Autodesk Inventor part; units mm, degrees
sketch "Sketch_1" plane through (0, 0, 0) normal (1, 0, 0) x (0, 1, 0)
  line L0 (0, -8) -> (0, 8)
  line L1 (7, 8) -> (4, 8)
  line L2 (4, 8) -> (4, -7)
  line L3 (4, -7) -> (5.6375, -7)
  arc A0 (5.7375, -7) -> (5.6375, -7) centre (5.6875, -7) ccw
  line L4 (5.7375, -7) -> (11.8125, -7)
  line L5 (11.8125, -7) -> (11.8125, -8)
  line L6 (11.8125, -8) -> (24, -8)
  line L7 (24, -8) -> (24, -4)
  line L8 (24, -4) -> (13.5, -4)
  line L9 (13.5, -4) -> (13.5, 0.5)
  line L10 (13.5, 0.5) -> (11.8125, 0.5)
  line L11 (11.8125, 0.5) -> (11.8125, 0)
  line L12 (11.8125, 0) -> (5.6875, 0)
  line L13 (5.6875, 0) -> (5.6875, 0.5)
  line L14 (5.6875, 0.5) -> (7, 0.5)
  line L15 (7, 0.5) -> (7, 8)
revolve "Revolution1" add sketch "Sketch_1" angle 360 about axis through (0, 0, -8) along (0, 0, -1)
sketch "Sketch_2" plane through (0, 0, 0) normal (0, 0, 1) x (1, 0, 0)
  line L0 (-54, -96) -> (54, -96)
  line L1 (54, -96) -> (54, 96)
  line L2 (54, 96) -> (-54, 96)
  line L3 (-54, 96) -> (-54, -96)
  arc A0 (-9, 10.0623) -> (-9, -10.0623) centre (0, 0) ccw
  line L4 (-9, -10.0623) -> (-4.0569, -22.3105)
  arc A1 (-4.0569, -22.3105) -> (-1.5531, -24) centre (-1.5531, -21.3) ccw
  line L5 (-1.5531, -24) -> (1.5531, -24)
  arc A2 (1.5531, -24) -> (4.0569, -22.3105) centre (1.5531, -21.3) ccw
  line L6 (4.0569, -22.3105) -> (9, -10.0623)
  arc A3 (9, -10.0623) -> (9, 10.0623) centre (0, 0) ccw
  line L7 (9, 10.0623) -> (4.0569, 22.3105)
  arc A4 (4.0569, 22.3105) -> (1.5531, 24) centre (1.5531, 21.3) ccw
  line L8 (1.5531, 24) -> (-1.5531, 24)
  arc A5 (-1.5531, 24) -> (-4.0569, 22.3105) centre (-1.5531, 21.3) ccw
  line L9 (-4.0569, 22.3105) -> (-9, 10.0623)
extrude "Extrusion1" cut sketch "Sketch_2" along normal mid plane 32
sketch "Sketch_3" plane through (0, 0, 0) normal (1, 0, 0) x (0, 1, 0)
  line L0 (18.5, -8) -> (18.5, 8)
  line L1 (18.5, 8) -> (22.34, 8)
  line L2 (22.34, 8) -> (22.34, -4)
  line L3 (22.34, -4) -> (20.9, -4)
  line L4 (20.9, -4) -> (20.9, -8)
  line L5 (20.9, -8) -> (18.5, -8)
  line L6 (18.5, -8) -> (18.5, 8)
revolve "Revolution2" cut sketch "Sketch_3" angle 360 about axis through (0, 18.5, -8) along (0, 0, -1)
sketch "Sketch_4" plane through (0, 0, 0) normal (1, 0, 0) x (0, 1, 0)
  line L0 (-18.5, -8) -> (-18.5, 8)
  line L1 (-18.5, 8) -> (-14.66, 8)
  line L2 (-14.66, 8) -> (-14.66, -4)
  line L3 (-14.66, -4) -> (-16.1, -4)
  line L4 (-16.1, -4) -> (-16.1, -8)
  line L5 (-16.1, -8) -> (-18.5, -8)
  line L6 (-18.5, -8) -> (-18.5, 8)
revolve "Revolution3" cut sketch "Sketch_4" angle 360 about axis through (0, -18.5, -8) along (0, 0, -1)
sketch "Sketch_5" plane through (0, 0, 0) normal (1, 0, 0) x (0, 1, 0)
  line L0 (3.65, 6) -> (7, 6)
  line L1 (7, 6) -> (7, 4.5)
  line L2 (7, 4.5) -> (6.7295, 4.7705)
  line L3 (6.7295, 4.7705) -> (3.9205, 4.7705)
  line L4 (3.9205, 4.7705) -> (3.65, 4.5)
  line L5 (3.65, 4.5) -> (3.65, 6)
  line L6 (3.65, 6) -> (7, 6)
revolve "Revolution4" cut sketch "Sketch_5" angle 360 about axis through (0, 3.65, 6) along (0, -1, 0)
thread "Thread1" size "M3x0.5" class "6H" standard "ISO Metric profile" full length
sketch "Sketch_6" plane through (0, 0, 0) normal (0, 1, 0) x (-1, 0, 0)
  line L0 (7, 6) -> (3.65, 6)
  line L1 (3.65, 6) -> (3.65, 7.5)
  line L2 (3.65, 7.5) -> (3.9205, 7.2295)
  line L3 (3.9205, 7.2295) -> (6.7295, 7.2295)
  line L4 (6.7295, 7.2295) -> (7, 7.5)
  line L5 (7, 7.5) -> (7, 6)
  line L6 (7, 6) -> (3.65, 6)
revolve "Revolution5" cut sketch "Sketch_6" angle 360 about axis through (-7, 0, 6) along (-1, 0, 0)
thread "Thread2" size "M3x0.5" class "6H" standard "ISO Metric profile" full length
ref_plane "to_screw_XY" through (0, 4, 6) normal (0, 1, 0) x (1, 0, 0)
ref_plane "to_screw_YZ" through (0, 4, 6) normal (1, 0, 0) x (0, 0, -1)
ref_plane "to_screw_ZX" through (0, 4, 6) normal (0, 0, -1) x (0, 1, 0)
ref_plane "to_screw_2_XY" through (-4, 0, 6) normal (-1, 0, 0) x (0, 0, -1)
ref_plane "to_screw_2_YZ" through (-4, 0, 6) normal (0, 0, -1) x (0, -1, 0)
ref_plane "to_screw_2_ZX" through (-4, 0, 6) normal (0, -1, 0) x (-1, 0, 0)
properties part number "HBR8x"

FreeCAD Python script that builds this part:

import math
import FreeCAD as App
import Part
import Sketcher

V = App.Vector
Q = App.Units.Quantity

doc = App.newDocument("Part")
body = doc.addObject("PartDesign::Body", "Body")

# Sketch on YZ plane
sketch1 = body.newObject("Sketcher::SketchObject", "Sketch")
sketch1.AttachmentSupport = (doc.getObject("YZ_Plane"), [""])
sketch1.MapMode = "FlatFace"
sketch1.addGeometry([
    Part.LineSegment(V(7, 0.5, 0), V(7, 8, 0)),  # 0
    Part.LineSegment(V(7, 8, 0), V(4, 8, 0)),  # 1
    Part.LineSegment(V(4, 8, 0), V(4, -7, 0)),  # 2
    Part.LineSegment(V(4, -7, 0), V(5.638, -7, 0)),  # 3
    Part.ArcOfCircle(Part.Circle(V(5.688, -7, 0), V(0, 0, 1), 0.05), math.radians(0), math.radians(180)),  # 4
    Part.LineSegment(V(5.737, -7, 0), V(11.812, -7, 0)),  # 5
    Part.LineSegment(V(11.812, -7, 0), V(11.812, -8, 0)),  # 6
    Part.LineSegment(V(11.812, -8, 0), V(24, -8, 0)),  # 7
    Part.LineSegment(V(24, -8, 0), V(24, -4, 0)),  # 8
    Part.LineSegment(V(24, -4, 0), V(13.5, -4, 0)),  # 9
    Part.LineSegment(V(13.5, -4, 0), V(13.5, 0.5, 0)),  # 10
    Part.LineSegment(V(13.5, 0.5, 0), V(11.812, 0.5, 0)),  # 11
    Part.LineSegment(V(11.812, 0.5, 0), V(11.812, 0, 0)),  # 12
    Part.LineSegment(V(11.812, 0, 0), V(5.688, 0, 0)),  # 13
    Part.LineSegment(V(5.688, 0, 0), V(5.688, 0.5, 0)),  # 14
    Part.LineSegment(V(5.688, 0.5, 0), V(7, 0.5, 0)),  # 15
], False)
sketch1.addConstraint([
    Sketcher.Constraint("Coincident", 0, 2, 1, 1),
    Sketcher.Constraint("Coincident", 1, 2, 2, 1),
    Sketcher.Constraint("Coincident", 2, 2, 3, 1),
    Sketcher.Constraint("Coincident", 3, 2, 4, 2),
    Sketcher.Constraint("Coincident", 4, 1, 5, 1),
    Sketcher.Constraint("Coincident", 5, 2, 6, 1),
    Sketcher.Constraint("Coincident", 6, 2, 7, 1),
    Sketcher.Constraint("Coincident", 7, 2, 8, 1),
    Sketcher.Constraint("Coincident", 8, 2, 9, 1),
    Sketcher.Constraint("Coincident", 9, 2, 10, 1),
    Sketcher.Constraint("Coincident", 10, 2, 11, 1),
    Sketcher.Constraint("Coincident", 11, 2, 12, 1),
    Sketcher.Constraint("Coincident", 12, 2, 13, 1),
    Sketcher.Constraint("Coincident", 13, 2, 14, 1),
    Sketcher.Constraint("Coincident", 14, 2, 15, 1),
    Sketcher.Constraint("Coincident", 15, 2, 0, 1),
    Sketcher.Constraint("Vertical", 0),
    Sketcher.Constraint("Horizontal", 1),
    Sketcher.Constraint("Vertical", 2),
    Sketcher.Constraint("Horizontal", 3),
    Sketcher.Constraint("Horizontal", 5),
    Sketcher.Constraint("Vertical", 6),
    Sketcher.Constraint("Horizontal", 7),
    Sketcher.Constraint("Vertical", 8),
    Sketcher.Constraint("Horizontal", 9),
    Sketcher.Constraint("Vertical", 10),
    Sketcher.Constraint("Horizontal", 11),
    Sketcher.Constraint("Vertical", 12),
    Sketcher.Constraint("Horizontal", 13),
    Sketcher.Constraint("Vertical", 14),
    Sketcher.Constraint("Horizontal", 15),
    Sketcher.Constraint("PointOnObject", 12, 2, -1),
    Sketcher.Constraint("Horizontal", 4, 3, 2, 2),
    Sketcher.Constraint("Horizontal", 3, 2, 4, 1),
    Sketcher.Constraint("Horizontal", 11, 2, 14, 2),
    Sketcher.Constraint("Vertical", 6, 2, 11, 2),
    Sketcher.Constraint("Vertical", 4, 3, 13, 2),
    Sketcher.Constraint("DistanceX", 1, 2, 1, 1, Q("3 mm")),
    Sketcher.Constraint("DistanceY", 2, 2, 2, 1, Q("15 mm")),
    Sketcher.Constraint("DistanceY", 6, 2, 6, 1, Q("1 mm")),
    Sketcher.Constraint("DistanceY", 8, 1, 8, 2, Q("4 mm")),
    Sketcher.Constraint("Radius", 4, Q("0.05 mm")),
    Sketcher.Constraint("DistanceX", 9, 2, 9, 1, Q("10.5 mm")),
    Sketcher.Constraint("DistanceY", 0, 1, 0, 2, Q("7.5 mm")),
    Sketcher.Constraint("DistanceY", 12, 2, 12, 1, Q("0.5 mm")),
    Sketcher.Constraint("DistanceX", -1, 1, 0, 2, Q("7 mm")),
    Sketcher.Constraint("DistanceX", -1, 1, 7, 2, Q("24 mm")),
    Sketcher.Constraint("DistanceX", 5, 1, 5, 2, Q("6.075 mm")),
    Sketcher.Constraint("DistanceX", 3, 1, 3, 2, Q("1.6375 mm")),
])
revolution = body.newObject("PartDesign::Revolution", "Revolution")
revolution.Profile = sketch1
revolution.ReferenceAxis = (sketch1, ["V_Axis"])
revolution.Angle = 360

# Sketch on XY plane
sketch2 = body.newObject("Sketcher::SketchObject", "Sketch001")
sketch2.AttachmentSupport = (doc.getObject("XY_Plane"), [""])
sketch2.MapMode = "FlatFace"
sketch2.addGeometry([
    Part.LineSegment(V(-54, 96, 0), V(-54, -96, 0)),  # 0
    Part.LineSegment(V(-54, -96, 0), V(54, -96, 0)),  # 1
    Part.LineSegment(V(54, -96, 0), V(54, 96, 0)),  # 2
    Part.LineSegment(V(54, 96, 0), V(-54, 96, 0)),  # 3
    Part.ArcOfCircle(Part.Circle(V(0, 0, 0), V(0, 0, 1), 13.5), math.radians(132), math.radians(228)),  # 4
    Part.LineSegment(V(-9, 10.1, 0), V(-4.1, 22.3, 0)),  # 5
    Part.ArcOfCircle(Part.Circle(V(-1.6, 21.3, 0), V(0, 0, 1), 2.7), math.radians(90), math.radians(158)),  # 6
    Part.LineSegment(V(-1.6, 24, 0), V(1.6, 24, 0)),  # 7
    Part.ArcOfCircle(Part.Circle(V(1.6, 21.3, 0), V(0, 0, 1), 2.7), math.radians(22), math.radians(90)),  # 8
    Part.LineSegment(V(4.1, 22.3, 0), V(9, 10.1, 0)),  # 9
    Part.ArcOfCircle(Part.Circle(V(0, 0, 0), V(0, 0, 1), 13.5), math.radians(-48), math.radians(48)),  # 10
    Part.LineSegment(V(9, -10.1, 0), V(4.1, -22.3, 0)),  # 11
    Part.ArcOfCircle(Part.Circle(V(1.6, -21.3, 0), V(0, 0, 1), 2.7), math.radians(-90), math.radians(-22)),  # 12
    Part.LineSegment(V(1.6, -24, 0), V(-1.6, -24, 0)),  # 13
    Part.ArcOfCircle(Part.Circle(V(-1.6, -21.3, 0), V(0, 0, 1), 2.7), math.radians(-158), math.radians(-90)),  # 14
    Part.LineSegment(V(-4.1, -22.3, 0), V(-9, -10.1, 0)),  # 15
], False)
sketch2.addConstraint([
    Sketcher.Constraint("Coincident", 0, 2, 1, 1),
    Sketcher.Constraint("Coincident", 1, 2, 2, 1),
    Sketcher.Constraint("Coincident", 2, 2, 3, 1),
    Sketcher.Constraint("Coincident", 3, 2, 0, 1),
    Sketcher.Constraint("Coincident", 4, 1, 5, 1),
    Sketcher.Constraint("Tangent", 5, 2, 6, 2),
    Sketcher.Constraint("Tangent", 6, 1, 7, 1),
    Sketcher.Constraint("Tangent", 7, 2, 8, 2),
    Sketcher.Constraint("Tangent", 8, 1, 9, 1),
    Sketcher.Constraint("Coincident", 9, 2, 10, 2),
    Sketcher.Constraint("Coincident", 10, 1, 11, 1),
    Sketcher.Constraint("Tangent", 11, 2, 12, 2),
    Sketcher.Constraint("Tangent", 12, 1, 13, 1),
    Sketcher.Constraint("Tangent", 13, 2, 14, 2),
    Sketcher.Constraint("Tangent", 14, 1, 15, 1),
    Sketcher.Constraint("Coincident", 15, 2, 4, 2),
    Sketcher.Constraint("Vertical", 0),
    Sketcher.Constraint("Horizontal", 1),
    Sketcher.Constraint("Vertical", 2),
    Sketcher.Constraint("Horizontal", 3),
    Sketcher.Constraint("Horizontal", 7),
    Sketcher.Constraint("Horizontal", 13),
    Sketcher.Constraint("Coincident", 4, 3, -1, 1),
    Sketcher.Constraint("Coincident", 10, 3, -1, 1),
    Sketcher.Constraint("Equal", 6, 8),
    Sketcher.Constraint("Equal", 4, 10),
    Sketcher.Constraint("Equal", 8, 12),
    Sketcher.Constraint("Equal", 12, 14),
    Sketcher.Constraint("Symmetric", 6, 3, 12, 3, -1, 1),
    Sketcher.Constraint("Symmetric", 0, 2, 2, 2, -1, 1),
    Sketcher.Constraint("Symmetric", 8, 1, 14, 1, -1, 1),
    Sketcher.Constraint("Symmetric", 5, 2, 8, 1, -2),
    Sketcher.Constraint("Parallel", 5, 11),
    Sketcher.Constraint("Radius", 4, Q("13.5 mm")),
    Sketcher.Constraint("Radius", 6, Q("2.7 mm")),
    Sketcher.Constraint("DistanceX", 1, 1, 1, 2, Q("108 mm")),
    Sketcher.Constraint("DistanceY", 0, 2, 0, 1, Q("192 mm")),
    Sketcher.Constraint("DistanceX", 4, 1, -1, 1, Q("9 mm")),
    Sketcher.Constraint("DistanceY", -1, 1, 6, 1, Q("24 mm")),
    Sketcher.Constraint("DistanceX", 5, 2, 8, 3, Q("5.61 mm")),
])
pocket1 = body.newObject("PartDesign::Pocket", "Pocket")
pocket1.Profile = sketch2
pocket1.Length = 32
pocket1.Midplane = True

# Sketch on YZ plane
sketch3 = body.newObject("Sketcher::SketchObject", "Sketch002")
sketch3.AttachmentSupport = (doc.getObject("YZ_Plane"), [""])
sketch3.MapMode = "FlatFace"
sketch3.addGeometry([
    Part.LineSegment(V(18.5, 8, 0), V(18.5, -8, 0)),  # 0
    Part.LineSegment(V(18.5, -8, 0), V(20.9, -8, 0)),  # 1
    Part.LineSegment(V(20.9, -8, 0), V(20.9, -4, 0)),  # 2
    Part.LineSegment(V(20.9, -4, 0), V(22.3, -4, 0)),  # 3
    Part.LineSegment(V(22.3, -4, 0), V(22.3, 8, 0)),  # 4
    Part.LineSegment(V(22.3, 8, 0), V(18.5, 8, 0)),  # 5
], False)
sketch3.addGeometry(Part.LineSegment(V(18.5, 8, 0), V(18.5, -8, 0)), True)  # axis
sketch3.addConstraint([
    Sketcher.Constraint("Coincident", 0, 2, 1, 1),
    Sketcher.Constraint("Coincident", 1, 2, 2, 1),
    Sketcher.Constraint("Coincident", 2, 2, 3, 1),
    Sketcher.Constraint("Coincident", 3, 2, 4, 1),
    Sketcher.Constraint("Coincident", 4, 2, 5, 1),
    Sketcher.Constraint("Coincident", 5, 2, 0, 1),
    Sketcher.Constraint("Vertical", 0),
    Sketcher.Constraint("Horizontal", 1),
    Sketcher.Constraint("Vertical", 2),
    Sketcher.Constraint("Horizontal", 3),
    Sketcher.Constraint("Vertical", 4),
    Sketcher.Constraint("Horizontal", 5),
    Sketcher.Constraint("Vertical", 6),
    Sketcher.Constraint("Coincident", 6, 1, 5, 2),
    Sketcher.Constraint("Horizontal", 1, 2, 6, 2),
    Sketcher.Constraint("DistanceY", 0, 2, 0, 1, Q("16 mm")),
    Sketcher.Constraint("DistanceY", 2, 1, 2, 2, Q("4 mm")),
    Sketcher.Constraint("DistanceX", 1, 1, 1, 2, Q("2.4 mm")),
    Sketcher.Constraint("DistanceY", 0, 2, -1, 1, Q("8 mm")),
    Sketcher.Constraint("DistanceX", 3, 1, 3, 2, Q("1.44 mm")),
    Sketcher.Constraint("DistanceX", -1, 1, 0, 2, Q("18.5 mm")),
])
groove = body.newObject("PartDesign::Groove", "Groove")
groove.Profile = sketch3
groove.ReferenceAxis = (sketch3, ["Axis0"])
groove.Angle = 360

# Sketch on YZ plane
sketch4 = body.newObject("Sketcher::SketchObject", "Sketch003")
sketch4.AttachmentSupport = (doc.getObject("YZ_Plane"), [""])
sketch4.MapMode = "FlatFace"
sketch4.addGeometry([
    Part.LineSegment(V(-18.5, 8, 0), V(-18.5, -8, 0)),  # 0
    Part.LineSegment(V(-18.5, -8, 0), V(-16.1, -8, 0)),  # 1
    Part.LineSegment(V(-16.1, -8, 0), V(-16.1, -4, 0)),  # 2
    Part.LineSegment(V(-16.1, -4, 0), V(-14.7, -4, 0)),  # 3
    Part.LineSegment(V(-14.7, -4, 0), V(-14.7, 8, 0)),  # 4
    Part.LineSegment(V(-14.7, 8, 0), V(-18.5, 8, 0)),  # 5
], False)
sketch4.addGeometry(Part.LineSegment(V(-18.5, 8, 0), V(-18.5, -8, 0)), True)  # axis
sketch4.addConstraint([
    Sketcher.Constraint("Coincident", 0, 2, 1, 1),
    Sketcher.Constraint("Coincident", 1, 2, 2, 1),
    Sketcher.Constraint("Coincident", 2, 2, 3, 1),
    Sketcher.Constraint("Coincident", 3, 2, 4, 1),
    Sketcher.Constraint("Coincident", 4, 2, 5, 1),
    Sketcher.Constraint("Coincident", 5, 2, 0, 1),
    Sketcher.Constraint("Vertical", 0),
    Sketcher.Constraint("Horizontal", 1),
    Sketcher.Constraint("Vertical", 2),
    Sketcher.Constraint("Horizontal", 3),
    Sketcher.Constraint("Vertical", 4),
    Sketcher.Constraint("Horizontal", 5),
    Sketcher.Constraint("Vertical", 6),
    Sketcher.Constraint("Coincident", 6, 1, 5, 2),
    Sketcher.Constraint("Horizontal", 1, 2, 6, 2),
    Sketcher.Constraint("DistanceY", 0, 2, 0, 1, Q("16 mm")),
    Sketcher.Constraint("DistanceY", 2, 1, 2, 2, Q("4 mm")),
    Sketcher.Constraint("DistanceX", 1, 1, 1, 2, Q("2.4 mm")),
    Sketcher.Constraint("DistanceY", 0, 2, -1, 1, Q("8 mm")),
    Sketcher.Constraint("DistanceX", 3, 1, 3, 2, Q("1.44 mm")),
    Sketcher.Constraint("DistanceX", 0, 2, -1, 1, Q("18.5 mm")),
])
groove2 = body.newObject("PartDesign::Groove", "Groove001")
groove2.Profile = sketch4
groove2.ReferenceAxis = (sketch4, ["Axis0"])
groove2.Angle = 360

# Sketch on YZ plane
sketch5 = body.newObject("Sketcher::SketchObject", "Sketch004")
sketch5.AttachmentSupport = (doc.getObject("YZ_Plane"), [""])
sketch5.MapMode = "FlatFace"
sketch5.addGeometry([
    Part.LineSegment(V(7, 6, 0), V(3.65, 6, 0)),  # 0
    Part.LineSegment(V(3.65, 6, 0), V(3.65, 4.5, 0)),  # 1
    Part.LineSegment(V(3.65, 4.5, 0), V(3.92, 4.77, 0)),  # 2
    Part.LineSegment(V(3.92, 4.77, 0), V(6.73, 4.77, 0)),  # 3
    Part.LineSegment(V(6.73, 4.77, 0), V(7, 4.5, 0)),  # 4
    Part.LineSegment(V(7, 4.5, 0), V(7, 6, 0)),  # 5
], False)
sketch5.addGeometry(Part.LineSegment(V(7, 6, 0), V(3.65, 6, 0)), True)  # axis
sketch5.addConstraint([
    Sketcher.Constraint("Coincident", 0, 2, 1, 1),
    Sketcher.Constraint("Coincident", 1, 2, 2, 1),
    Sketcher.Constraint("Coincident", 2, 2, 3, 1),
    Sketcher.Constraint("Coincident", 3, 2, 4, 1),
    Sketcher.Constraint("Coincident", 4, 2, 5, 1),
    Sketcher.Constraint("Coincident", 5, 2, 0, 1),
    Sketcher.Constraint("Horizontal", 0),
    Sketcher.Constraint("Vertical", 1),
    Sketcher.Constraint("Horizontal", 3),
    Sketcher.Constraint("Vertical", 5),
    Sketcher.Constraint("Horizontal", 6),
    Sketcher.Constraint("Coincident", 6, 1, 5, 2),
    Sketcher.Constraint("Perpendicular", 2, 4),
    Sketcher.Constraint("Horizontal", 1, 2, 4, 2),
    Sketcher.Constraint("Vertical", 1, 2, 6, 2),
    Sketcher.Constraint("Equal", 2, 4),
    Sketcher.Constraint("DistanceY", 1, 2, 1, 1, Q("1.5 mm")),
    Sketcher.Constraint("DistanceY", -1, 1, 0, 2, Q("6 mm")),
    Sketcher.Constraint("DistanceX", -1, 1, 4, 2, Q("7 mm")),
    Sketcher.Constraint("DistanceX", 0, 2, 0, 1, Q("3.35 mm")),
    Sketcher.Constraint("DistanceX", 3, 1, 3, 2, Q("2.809 mm")),
])
groove3 = body.newObject("PartDesign::Groove", "Groove002")
groove3.Profile = sketch5
groove3.ReferenceAxis = (sketch5, ["Axis0"])
groove3.Angle = 360

# Sketch on XZ plane
sketch6 = body.newObject("Sketcher::SketchObject", "Sketch005")
sketch6.AttachmentSupport = (doc.getObject("XZ_Plane"), [""])
sketch6.MapMode = "FlatFace"
sketch6.addGeometry([
    Part.LineSegment(V(-3.65, 6, 0), V(-7, 6, 0)),  # 0
    Part.LineSegment(V(-7, 6, 0), V(-7, 7.5, 0)),  # 1
    Part.LineSegment(V(-7, 7.5, 0), V(-6.73, 7.23, 0)),  # 2
    Part.LineSegment(V(-6.73, 7.23, 0), V(-3.92, 7.23, 0)),  # 3
    Part.LineSegment(V(-3.92, 7.23, 0), V(-3.65, 7.5, 0)),  # 4
    Part.LineSegment(V(-3.65, 7.5, 0), V(-3.65, 6, 0)),  # 5
], False)
sketch6.addGeometry(Part.LineSegment(V(-3.65, 6, 0), V(-7, 6, 0)), True)  # axis
sketch6.addConstraint([
    Sketcher.Constraint("Coincident", 0, 2, 1, 1),
    Sketcher.Constraint("Coincident", 1, 2, 2, 1),
    Sketcher.Constraint("Coincident", 2, 2, 3, 1),
    Sketcher.Constraint("Coincident", 3, 2, 4, 1),
    Sketcher.Constraint("Coincident", 4, 2, 5, 1),
    Sketcher.Constraint("Coincident", 5, 2, 0, 1),
    Sketcher.Constraint("Horizontal", 0),
    Sketcher.Constraint("Vertical", 1),
    Sketcher.Constraint("Horizontal", 3),
    Sketcher.Constraint("Vertical", 5),
    Sketcher.Constraint("Horizontal", 6),
    Sketcher.Constraint("Coincident", 6, 1, 5, 2),
    Sketcher.Constraint("Perpendicular", 2, 4),
    Sketcher.Constraint("Horizontal", 1, 2, 4, 2),
    Sketcher.Constraint("Vertical", 1, 2, 6, 2),
    Sketcher.Constraint("Equal", 2, 4),
    Sketcher.Constraint("DistanceY", 1, 1, 1, 2, Q("1.5 mm")),
    Sketcher.Constraint("DistanceX", 0, 2, -1, 1, Q("7 mm")),
    Sketcher.Constraint("DistanceY", -1, 1, 0, 2, Q("6 mm")),
    Sketcher.Constraint("DistanceX", 0, 2, 0, 1, Q("3.35 mm")),
    Sketcher.Constraint("DistanceX", 3, 1, 3, 2, Q("2.809 mm")),
])
groove4 = body.newObject("PartDesign::Groove", "Groove003")
groove4.Profile = sketch6
groove4.ReferenceAxis = (sketch6, ["Axis0"])
groove4.Angle = 360

doc.recompute()
